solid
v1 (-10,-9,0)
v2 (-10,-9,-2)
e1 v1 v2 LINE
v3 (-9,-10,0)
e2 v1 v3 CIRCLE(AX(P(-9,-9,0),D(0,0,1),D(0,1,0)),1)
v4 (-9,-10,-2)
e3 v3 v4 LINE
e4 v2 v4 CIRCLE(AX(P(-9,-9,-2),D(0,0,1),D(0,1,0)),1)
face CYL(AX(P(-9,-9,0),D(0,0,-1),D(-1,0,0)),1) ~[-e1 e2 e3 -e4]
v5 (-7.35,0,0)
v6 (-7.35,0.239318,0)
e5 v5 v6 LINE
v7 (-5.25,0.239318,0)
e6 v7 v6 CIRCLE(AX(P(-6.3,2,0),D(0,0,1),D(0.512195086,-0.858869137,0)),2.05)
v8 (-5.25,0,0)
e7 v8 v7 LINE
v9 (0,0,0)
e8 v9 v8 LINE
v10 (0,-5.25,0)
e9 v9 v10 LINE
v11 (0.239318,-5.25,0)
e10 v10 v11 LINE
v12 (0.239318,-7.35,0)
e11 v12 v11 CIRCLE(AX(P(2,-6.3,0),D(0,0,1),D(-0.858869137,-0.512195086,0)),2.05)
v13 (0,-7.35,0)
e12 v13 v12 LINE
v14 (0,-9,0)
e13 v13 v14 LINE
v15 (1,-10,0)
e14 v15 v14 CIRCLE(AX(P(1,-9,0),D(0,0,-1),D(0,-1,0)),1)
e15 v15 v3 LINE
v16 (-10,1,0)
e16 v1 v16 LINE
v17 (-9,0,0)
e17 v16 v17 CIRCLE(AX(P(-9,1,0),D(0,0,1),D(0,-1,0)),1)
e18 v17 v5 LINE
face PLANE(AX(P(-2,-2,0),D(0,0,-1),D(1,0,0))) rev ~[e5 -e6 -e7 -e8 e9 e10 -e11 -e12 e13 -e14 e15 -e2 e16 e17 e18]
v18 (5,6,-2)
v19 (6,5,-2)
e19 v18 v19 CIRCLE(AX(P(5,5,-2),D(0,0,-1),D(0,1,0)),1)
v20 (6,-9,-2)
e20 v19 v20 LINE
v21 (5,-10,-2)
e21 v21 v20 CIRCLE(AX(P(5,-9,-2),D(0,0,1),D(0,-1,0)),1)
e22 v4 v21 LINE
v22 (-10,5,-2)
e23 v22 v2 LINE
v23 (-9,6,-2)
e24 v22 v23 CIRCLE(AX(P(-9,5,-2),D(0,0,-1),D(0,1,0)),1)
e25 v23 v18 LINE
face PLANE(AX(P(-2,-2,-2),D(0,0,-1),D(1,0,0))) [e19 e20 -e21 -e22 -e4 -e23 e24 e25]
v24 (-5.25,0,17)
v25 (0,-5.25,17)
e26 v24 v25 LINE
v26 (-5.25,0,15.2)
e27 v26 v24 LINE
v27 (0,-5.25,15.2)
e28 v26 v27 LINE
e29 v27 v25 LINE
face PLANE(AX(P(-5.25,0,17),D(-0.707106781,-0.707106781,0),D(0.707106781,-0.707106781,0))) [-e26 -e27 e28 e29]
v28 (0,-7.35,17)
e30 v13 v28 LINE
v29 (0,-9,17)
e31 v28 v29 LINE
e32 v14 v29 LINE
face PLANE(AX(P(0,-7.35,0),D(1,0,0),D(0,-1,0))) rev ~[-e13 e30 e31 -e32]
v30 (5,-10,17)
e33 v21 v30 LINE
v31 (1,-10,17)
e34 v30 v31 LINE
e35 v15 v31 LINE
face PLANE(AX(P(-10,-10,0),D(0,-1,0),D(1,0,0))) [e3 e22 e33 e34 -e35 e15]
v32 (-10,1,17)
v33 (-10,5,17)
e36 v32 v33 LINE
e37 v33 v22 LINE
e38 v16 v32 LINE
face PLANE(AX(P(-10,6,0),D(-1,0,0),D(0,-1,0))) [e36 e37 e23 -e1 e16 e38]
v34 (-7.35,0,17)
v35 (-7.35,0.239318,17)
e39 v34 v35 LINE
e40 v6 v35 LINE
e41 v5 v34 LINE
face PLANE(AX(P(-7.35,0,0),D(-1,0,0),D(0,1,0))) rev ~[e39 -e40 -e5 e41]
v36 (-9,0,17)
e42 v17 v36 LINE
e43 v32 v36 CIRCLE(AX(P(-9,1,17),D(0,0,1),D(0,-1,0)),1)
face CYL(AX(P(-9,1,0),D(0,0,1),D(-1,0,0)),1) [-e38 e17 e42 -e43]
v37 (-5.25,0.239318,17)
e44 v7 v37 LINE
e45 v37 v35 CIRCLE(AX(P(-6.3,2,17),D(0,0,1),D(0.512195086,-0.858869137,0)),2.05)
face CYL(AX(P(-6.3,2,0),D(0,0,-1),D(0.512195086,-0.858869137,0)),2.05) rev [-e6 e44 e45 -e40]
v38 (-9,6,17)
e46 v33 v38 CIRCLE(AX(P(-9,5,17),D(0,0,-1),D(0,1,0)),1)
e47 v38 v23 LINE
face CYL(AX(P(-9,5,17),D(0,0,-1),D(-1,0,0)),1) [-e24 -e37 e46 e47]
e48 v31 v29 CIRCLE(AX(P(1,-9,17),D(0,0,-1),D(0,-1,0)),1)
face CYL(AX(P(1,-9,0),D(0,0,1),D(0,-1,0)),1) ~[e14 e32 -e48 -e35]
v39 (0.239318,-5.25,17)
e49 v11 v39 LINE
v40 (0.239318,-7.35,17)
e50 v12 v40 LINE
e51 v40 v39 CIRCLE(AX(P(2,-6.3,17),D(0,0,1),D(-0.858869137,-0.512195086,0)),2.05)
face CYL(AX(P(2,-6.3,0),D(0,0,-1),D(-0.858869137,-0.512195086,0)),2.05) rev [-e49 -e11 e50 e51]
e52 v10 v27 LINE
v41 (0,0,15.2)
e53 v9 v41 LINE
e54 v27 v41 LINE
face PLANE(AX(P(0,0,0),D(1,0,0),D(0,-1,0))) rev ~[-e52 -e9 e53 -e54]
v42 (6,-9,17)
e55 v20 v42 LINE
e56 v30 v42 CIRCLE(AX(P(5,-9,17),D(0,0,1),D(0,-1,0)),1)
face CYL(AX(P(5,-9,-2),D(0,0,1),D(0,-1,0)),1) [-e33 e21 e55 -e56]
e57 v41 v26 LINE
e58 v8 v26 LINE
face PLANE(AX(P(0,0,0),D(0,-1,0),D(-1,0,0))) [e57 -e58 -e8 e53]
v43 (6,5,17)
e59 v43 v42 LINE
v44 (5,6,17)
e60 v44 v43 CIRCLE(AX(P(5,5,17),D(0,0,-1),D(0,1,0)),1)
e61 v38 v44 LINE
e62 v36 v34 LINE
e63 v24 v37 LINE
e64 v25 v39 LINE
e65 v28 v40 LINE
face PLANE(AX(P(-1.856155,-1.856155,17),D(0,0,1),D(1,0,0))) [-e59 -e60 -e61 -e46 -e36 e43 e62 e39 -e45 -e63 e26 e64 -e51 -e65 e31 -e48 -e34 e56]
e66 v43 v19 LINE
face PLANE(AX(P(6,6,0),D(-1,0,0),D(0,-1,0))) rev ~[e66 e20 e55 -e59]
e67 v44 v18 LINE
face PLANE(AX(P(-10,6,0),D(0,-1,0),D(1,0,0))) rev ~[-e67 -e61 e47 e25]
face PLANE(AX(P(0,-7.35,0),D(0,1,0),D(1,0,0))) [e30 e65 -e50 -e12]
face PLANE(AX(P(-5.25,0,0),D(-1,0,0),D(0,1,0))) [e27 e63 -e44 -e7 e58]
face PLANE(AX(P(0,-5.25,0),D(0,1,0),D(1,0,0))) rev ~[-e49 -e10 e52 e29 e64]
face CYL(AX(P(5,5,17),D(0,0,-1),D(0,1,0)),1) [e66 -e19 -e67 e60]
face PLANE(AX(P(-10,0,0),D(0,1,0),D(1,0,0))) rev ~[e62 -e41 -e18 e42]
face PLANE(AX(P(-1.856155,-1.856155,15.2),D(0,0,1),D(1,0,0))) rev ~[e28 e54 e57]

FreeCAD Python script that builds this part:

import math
import FreeCAD as App
import Part
import Sketcher
from FreeCAD import Vector


def edges_at(feature, points):
    """Names of the edges that pass closest to the given points."""
    edges = feature.Shape.Edges
    near = lambda p: min(range(len(edges)), key=lambda i: edges[i].distToShape(Part.Vertex(*p))[0])
    return sorted({f"Edge{near(p) + 1}" for p in points})


def add_polygon(sketch, points):
    """Adds a closed chain of lines whose ends are joined by coincident constraints."""
    first, n = sketch.GeometryCount, len(points)
    for a, b in zip(points, points[1:] + points[:1]):
        sketch.addGeometry(Part.LineSegment(App.Vector(*a, 0), App.Vector(*b, 0)), False)
    for i in range(n):
        sketch.addConstraint(Sketcher.Constraint("Coincident", first + i, 2, first + (i + 1) % n, 1))

doc = App.newDocument("Part")
body = doc.addObject("PartDesign::Body", "Body")

# Sketch on XY plane
sketch1 = body.newObject("Sketcher::SketchObject", "Sketch")
sketch1.AttachmentSupport = (doc.getObject("XY_Plane"), [""])
sketch1.MapMode = "FlatFace"
sketch1.addGeometry([
    Part.LineSegment(Vector(-10, 6, 0), Vector(-10, 0, 0)),  # 0
    Part.LineSegment(Vector(-10, 0, 0), Vector(-7.35, 0, 0)),  # 1
    Part.LineSegment(Vector(-7.35, 0, 0), Vector(-7.35, 0.24, 0)),  # 2
    Part.ArcOfCircle(Part.Circle(Vector(-6.3, 2, 0), Vector(0, 0, 1), 2.05), math.radians(-59), math.radians(239)),  # 3
    Part.LineSegment(Vector(-5.25, 0.24, 0), Vector(-5.25, 0, 0)),  # 4
    Part.LineSegment(Vector(-5.25, 0, 0), Vector(0, 0, 0)),  # 5
    Part.LineSegment(Vector(0, 0, 0), Vector(0, -5.25, 0)),  # 6
    Part.LineSegment(Vector(0, -5.25, 0), Vector(0.24, -5.25, 0)),  # 7
    Part.ArcOfCircle(Part.Circle(Vector(2, -6.3, 0), Vector(0, 0, 1), 2.05), math.radians(-149), math.radians(149)),  # 8
    Part.LineSegment(Vector(0.24, -7.35, 0), Vector(0, -7.35, 0)),  # 9
    Part.LineSegment(Vector(0, -7.35, 0), Vector(0, -10, 0)),  # 10
    Part.LineSegment(Vector(0, -10, 0), Vector(6, -10, 0)),  # 11
    Part.LineSegment(Vector(6, -10, 0), Vector(6, 6, 0)),  # 12
    Part.LineSegment(Vector(6, 6, 0), Vector(-10, 6, 0)),  # 13
], False)
sketch1.addConstraint([
    Sketcher.Constraint("Coincident", 0, 2, 1, 1),
    Sketcher.Constraint("Coincident", 1, 2, 2, 1),
    Sketcher.Constraint("Coincident", 2, 2, 3, 2),
    Sketcher.Constraint("Coincident", 3, 1, 4, 1),
    Sketcher.Constraint("Coincident", 4, 2, 5, 1),
    Sketcher.Constraint("Coincident", 5, 2, 6, 1),
    Sketcher.Constraint("Coincident", 6, 2, 7, 1),
    Sketcher.Constraint("Coincident", 7, 2, 8, 2),
    Sketcher.Constraint("Coincident", 8, 1, 9, 1),
    Sketcher.Constraint("Coincident", 9, 2, 10, 1),
    Sketcher.Constraint("Coincident", 10, 2, 11, 1),
    Sketcher.Constraint("Coincident", 11, 2, 12, 1),
    Sketcher.Constraint("Coincident", 12, 2, 13, 1),
    Sketcher.Constraint("Coincident", 13, 2, 0, 1),
    Sketcher.Constraint("Vertical", 0),
    Sketcher.Constraint("Horizontal", 1),
    Sketcher.Constraint("Vertical", 2),
    Sketcher.Constraint("Vertical", 4),
    Sketcher.Constraint("Horizontal", 5),
    Sketcher.Constraint("Vertical", 6),
    Sketcher.Constraint("Horizontal", 7),
    Sketcher.Constraint("Horizontal", 9),
    Sketcher.Constraint("Vertical", 10),
    Sketcher.Constraint("Horizontal", 11),
    Sketcher.Constraint("Vertical", 12),
    Sketcher.Constraint("Horizontal", 13),
    Sketcher.Constraint("Coincident", 5, 2, -1, 1),
    Sketcher.Constraint("Equal", 3, 8),
    Sketcher.Constraint("PointOnObject", 0, 2, -1),
    Sketcher.Constraint("PointOnObject", 9, 2, -2),
    Sketcher.Constraint("Horizontal", 2, 2, 3, 1),
    Sketcher.Constraint("Vertical", 7, 2, 8, 1),
    Sketcher.Constraint("Equal", 11, 0),
    Sketcher.Constraint("Equal", 9, 2),
    Sketcher.Constraint("Equal", 5, 6),
    Sketcher.Constraint("Equal", 1, 10),
    Sketcher.Constraint("Equal", 13, 12),
    Sketcher.Constraint("DistanceX", 11, 1, 11, 2, 6.0),
    Sketcher.Constraint("DistanceX", 13, 2, 13, 1, 16.0),
    Sketcher.Constraint("Radius", 3, 2.05),
    Sketcher.Constraint("DistanceY", -1, 1, 3, 3, 2.0),
    Sketcher.Constraint("DistanceX", 1, 1, 1, 2, 2.65),
    Sketcher.Constraint("DistanceX", 5, 1, 5, 2, 5.25),
])
pad1 = body.newObject("PartDesign::Pad", "Pad")
pad1.Profile = sketch1
pad1.Length = 17

# Sketch on XY plane
sketch2 = body.newObject("Sketcher::SketchObject", "Sketch001")
sketch2.AttachmentSupport = (doc.getObject("XY_Plane"), [""])
sketch2.MapMode = "FlatFace"
add_polygon(sketch2, [(-10, -10), (-10, 6), (6, 6), (6, -10)])  # lines 0-3
sketch2.addConstraint([
    Sketcher.Constraint("Vertical", 0),
    Sketcher.Constraint("Horizontal", 1),
    Sketcher.Constraint("Vertical", 2),
    Sketcher.Constraint("Horizontal", 3),
    Sketcher.Constraint("Equal", 3, 0),
    Sketcher.Constraint("DistanceX", 1, 1, 1, 2, 16.0),
    Sketcher.Constraint("DistanceX", 0, 2, -1, 1, 10.0),
    Sketcher.Constraint("DistanceY", -1, 1, 0, 2, 6.0),
])
pad2 = body.newObject("PartDesign::Pad", "Pad001")
pad2.Profile = sketch2
pad2.Length = 2
pad2.Reversed = True

# Sketch on XY plane
sketch3 = body.newObject("Sketcher::SketchObject", "Sketch002")
sketch3.AttachmentSupport = (doc.getObject("XY_Plane"), [""])
sketch3.MapMode = "FlatFace"
sketch3.AttachmentOffset = App.Placement(Vector(0, 0, 17), App.Rotation())
add_polygon(sketch3, [(-5, 0), (0, -5), (0, 0)])  # lines 0-2
sketch3.addConstraint([
    Sketcher.Constraint("Vertical", 1),
    Sketcher.Constraint("Horizontal", 2),
    Sketcher.Constraint("Coincident", 1, 2, -1, 1),
    Sketcher.Constraint("Equal", 2, 1),
    Sketcher.Constraint("DistanceX", 2, 2, 2, 1, 5.25),
])
pad3 = body.newObject("PartDesign::Pad", "Pad002")
pad3.Profile = sketch3
pad3.Length = 1.8
pad3.Reversed = True
doc.recompute()

fillet = body.newObject("PartDesign::Fillet", "Fillet")
fillet.Base = (pad3, edges_at(pad3, [
    (6, -10, 7.5),
    (6, 6, 7.5),
    (-10, 6, 7.5),
    (0, -10, 8.5),
    (-10, 0, 8.5),
    (-10, -10, -1),
]))
fillet.Radius = 1

doc.recompute()
